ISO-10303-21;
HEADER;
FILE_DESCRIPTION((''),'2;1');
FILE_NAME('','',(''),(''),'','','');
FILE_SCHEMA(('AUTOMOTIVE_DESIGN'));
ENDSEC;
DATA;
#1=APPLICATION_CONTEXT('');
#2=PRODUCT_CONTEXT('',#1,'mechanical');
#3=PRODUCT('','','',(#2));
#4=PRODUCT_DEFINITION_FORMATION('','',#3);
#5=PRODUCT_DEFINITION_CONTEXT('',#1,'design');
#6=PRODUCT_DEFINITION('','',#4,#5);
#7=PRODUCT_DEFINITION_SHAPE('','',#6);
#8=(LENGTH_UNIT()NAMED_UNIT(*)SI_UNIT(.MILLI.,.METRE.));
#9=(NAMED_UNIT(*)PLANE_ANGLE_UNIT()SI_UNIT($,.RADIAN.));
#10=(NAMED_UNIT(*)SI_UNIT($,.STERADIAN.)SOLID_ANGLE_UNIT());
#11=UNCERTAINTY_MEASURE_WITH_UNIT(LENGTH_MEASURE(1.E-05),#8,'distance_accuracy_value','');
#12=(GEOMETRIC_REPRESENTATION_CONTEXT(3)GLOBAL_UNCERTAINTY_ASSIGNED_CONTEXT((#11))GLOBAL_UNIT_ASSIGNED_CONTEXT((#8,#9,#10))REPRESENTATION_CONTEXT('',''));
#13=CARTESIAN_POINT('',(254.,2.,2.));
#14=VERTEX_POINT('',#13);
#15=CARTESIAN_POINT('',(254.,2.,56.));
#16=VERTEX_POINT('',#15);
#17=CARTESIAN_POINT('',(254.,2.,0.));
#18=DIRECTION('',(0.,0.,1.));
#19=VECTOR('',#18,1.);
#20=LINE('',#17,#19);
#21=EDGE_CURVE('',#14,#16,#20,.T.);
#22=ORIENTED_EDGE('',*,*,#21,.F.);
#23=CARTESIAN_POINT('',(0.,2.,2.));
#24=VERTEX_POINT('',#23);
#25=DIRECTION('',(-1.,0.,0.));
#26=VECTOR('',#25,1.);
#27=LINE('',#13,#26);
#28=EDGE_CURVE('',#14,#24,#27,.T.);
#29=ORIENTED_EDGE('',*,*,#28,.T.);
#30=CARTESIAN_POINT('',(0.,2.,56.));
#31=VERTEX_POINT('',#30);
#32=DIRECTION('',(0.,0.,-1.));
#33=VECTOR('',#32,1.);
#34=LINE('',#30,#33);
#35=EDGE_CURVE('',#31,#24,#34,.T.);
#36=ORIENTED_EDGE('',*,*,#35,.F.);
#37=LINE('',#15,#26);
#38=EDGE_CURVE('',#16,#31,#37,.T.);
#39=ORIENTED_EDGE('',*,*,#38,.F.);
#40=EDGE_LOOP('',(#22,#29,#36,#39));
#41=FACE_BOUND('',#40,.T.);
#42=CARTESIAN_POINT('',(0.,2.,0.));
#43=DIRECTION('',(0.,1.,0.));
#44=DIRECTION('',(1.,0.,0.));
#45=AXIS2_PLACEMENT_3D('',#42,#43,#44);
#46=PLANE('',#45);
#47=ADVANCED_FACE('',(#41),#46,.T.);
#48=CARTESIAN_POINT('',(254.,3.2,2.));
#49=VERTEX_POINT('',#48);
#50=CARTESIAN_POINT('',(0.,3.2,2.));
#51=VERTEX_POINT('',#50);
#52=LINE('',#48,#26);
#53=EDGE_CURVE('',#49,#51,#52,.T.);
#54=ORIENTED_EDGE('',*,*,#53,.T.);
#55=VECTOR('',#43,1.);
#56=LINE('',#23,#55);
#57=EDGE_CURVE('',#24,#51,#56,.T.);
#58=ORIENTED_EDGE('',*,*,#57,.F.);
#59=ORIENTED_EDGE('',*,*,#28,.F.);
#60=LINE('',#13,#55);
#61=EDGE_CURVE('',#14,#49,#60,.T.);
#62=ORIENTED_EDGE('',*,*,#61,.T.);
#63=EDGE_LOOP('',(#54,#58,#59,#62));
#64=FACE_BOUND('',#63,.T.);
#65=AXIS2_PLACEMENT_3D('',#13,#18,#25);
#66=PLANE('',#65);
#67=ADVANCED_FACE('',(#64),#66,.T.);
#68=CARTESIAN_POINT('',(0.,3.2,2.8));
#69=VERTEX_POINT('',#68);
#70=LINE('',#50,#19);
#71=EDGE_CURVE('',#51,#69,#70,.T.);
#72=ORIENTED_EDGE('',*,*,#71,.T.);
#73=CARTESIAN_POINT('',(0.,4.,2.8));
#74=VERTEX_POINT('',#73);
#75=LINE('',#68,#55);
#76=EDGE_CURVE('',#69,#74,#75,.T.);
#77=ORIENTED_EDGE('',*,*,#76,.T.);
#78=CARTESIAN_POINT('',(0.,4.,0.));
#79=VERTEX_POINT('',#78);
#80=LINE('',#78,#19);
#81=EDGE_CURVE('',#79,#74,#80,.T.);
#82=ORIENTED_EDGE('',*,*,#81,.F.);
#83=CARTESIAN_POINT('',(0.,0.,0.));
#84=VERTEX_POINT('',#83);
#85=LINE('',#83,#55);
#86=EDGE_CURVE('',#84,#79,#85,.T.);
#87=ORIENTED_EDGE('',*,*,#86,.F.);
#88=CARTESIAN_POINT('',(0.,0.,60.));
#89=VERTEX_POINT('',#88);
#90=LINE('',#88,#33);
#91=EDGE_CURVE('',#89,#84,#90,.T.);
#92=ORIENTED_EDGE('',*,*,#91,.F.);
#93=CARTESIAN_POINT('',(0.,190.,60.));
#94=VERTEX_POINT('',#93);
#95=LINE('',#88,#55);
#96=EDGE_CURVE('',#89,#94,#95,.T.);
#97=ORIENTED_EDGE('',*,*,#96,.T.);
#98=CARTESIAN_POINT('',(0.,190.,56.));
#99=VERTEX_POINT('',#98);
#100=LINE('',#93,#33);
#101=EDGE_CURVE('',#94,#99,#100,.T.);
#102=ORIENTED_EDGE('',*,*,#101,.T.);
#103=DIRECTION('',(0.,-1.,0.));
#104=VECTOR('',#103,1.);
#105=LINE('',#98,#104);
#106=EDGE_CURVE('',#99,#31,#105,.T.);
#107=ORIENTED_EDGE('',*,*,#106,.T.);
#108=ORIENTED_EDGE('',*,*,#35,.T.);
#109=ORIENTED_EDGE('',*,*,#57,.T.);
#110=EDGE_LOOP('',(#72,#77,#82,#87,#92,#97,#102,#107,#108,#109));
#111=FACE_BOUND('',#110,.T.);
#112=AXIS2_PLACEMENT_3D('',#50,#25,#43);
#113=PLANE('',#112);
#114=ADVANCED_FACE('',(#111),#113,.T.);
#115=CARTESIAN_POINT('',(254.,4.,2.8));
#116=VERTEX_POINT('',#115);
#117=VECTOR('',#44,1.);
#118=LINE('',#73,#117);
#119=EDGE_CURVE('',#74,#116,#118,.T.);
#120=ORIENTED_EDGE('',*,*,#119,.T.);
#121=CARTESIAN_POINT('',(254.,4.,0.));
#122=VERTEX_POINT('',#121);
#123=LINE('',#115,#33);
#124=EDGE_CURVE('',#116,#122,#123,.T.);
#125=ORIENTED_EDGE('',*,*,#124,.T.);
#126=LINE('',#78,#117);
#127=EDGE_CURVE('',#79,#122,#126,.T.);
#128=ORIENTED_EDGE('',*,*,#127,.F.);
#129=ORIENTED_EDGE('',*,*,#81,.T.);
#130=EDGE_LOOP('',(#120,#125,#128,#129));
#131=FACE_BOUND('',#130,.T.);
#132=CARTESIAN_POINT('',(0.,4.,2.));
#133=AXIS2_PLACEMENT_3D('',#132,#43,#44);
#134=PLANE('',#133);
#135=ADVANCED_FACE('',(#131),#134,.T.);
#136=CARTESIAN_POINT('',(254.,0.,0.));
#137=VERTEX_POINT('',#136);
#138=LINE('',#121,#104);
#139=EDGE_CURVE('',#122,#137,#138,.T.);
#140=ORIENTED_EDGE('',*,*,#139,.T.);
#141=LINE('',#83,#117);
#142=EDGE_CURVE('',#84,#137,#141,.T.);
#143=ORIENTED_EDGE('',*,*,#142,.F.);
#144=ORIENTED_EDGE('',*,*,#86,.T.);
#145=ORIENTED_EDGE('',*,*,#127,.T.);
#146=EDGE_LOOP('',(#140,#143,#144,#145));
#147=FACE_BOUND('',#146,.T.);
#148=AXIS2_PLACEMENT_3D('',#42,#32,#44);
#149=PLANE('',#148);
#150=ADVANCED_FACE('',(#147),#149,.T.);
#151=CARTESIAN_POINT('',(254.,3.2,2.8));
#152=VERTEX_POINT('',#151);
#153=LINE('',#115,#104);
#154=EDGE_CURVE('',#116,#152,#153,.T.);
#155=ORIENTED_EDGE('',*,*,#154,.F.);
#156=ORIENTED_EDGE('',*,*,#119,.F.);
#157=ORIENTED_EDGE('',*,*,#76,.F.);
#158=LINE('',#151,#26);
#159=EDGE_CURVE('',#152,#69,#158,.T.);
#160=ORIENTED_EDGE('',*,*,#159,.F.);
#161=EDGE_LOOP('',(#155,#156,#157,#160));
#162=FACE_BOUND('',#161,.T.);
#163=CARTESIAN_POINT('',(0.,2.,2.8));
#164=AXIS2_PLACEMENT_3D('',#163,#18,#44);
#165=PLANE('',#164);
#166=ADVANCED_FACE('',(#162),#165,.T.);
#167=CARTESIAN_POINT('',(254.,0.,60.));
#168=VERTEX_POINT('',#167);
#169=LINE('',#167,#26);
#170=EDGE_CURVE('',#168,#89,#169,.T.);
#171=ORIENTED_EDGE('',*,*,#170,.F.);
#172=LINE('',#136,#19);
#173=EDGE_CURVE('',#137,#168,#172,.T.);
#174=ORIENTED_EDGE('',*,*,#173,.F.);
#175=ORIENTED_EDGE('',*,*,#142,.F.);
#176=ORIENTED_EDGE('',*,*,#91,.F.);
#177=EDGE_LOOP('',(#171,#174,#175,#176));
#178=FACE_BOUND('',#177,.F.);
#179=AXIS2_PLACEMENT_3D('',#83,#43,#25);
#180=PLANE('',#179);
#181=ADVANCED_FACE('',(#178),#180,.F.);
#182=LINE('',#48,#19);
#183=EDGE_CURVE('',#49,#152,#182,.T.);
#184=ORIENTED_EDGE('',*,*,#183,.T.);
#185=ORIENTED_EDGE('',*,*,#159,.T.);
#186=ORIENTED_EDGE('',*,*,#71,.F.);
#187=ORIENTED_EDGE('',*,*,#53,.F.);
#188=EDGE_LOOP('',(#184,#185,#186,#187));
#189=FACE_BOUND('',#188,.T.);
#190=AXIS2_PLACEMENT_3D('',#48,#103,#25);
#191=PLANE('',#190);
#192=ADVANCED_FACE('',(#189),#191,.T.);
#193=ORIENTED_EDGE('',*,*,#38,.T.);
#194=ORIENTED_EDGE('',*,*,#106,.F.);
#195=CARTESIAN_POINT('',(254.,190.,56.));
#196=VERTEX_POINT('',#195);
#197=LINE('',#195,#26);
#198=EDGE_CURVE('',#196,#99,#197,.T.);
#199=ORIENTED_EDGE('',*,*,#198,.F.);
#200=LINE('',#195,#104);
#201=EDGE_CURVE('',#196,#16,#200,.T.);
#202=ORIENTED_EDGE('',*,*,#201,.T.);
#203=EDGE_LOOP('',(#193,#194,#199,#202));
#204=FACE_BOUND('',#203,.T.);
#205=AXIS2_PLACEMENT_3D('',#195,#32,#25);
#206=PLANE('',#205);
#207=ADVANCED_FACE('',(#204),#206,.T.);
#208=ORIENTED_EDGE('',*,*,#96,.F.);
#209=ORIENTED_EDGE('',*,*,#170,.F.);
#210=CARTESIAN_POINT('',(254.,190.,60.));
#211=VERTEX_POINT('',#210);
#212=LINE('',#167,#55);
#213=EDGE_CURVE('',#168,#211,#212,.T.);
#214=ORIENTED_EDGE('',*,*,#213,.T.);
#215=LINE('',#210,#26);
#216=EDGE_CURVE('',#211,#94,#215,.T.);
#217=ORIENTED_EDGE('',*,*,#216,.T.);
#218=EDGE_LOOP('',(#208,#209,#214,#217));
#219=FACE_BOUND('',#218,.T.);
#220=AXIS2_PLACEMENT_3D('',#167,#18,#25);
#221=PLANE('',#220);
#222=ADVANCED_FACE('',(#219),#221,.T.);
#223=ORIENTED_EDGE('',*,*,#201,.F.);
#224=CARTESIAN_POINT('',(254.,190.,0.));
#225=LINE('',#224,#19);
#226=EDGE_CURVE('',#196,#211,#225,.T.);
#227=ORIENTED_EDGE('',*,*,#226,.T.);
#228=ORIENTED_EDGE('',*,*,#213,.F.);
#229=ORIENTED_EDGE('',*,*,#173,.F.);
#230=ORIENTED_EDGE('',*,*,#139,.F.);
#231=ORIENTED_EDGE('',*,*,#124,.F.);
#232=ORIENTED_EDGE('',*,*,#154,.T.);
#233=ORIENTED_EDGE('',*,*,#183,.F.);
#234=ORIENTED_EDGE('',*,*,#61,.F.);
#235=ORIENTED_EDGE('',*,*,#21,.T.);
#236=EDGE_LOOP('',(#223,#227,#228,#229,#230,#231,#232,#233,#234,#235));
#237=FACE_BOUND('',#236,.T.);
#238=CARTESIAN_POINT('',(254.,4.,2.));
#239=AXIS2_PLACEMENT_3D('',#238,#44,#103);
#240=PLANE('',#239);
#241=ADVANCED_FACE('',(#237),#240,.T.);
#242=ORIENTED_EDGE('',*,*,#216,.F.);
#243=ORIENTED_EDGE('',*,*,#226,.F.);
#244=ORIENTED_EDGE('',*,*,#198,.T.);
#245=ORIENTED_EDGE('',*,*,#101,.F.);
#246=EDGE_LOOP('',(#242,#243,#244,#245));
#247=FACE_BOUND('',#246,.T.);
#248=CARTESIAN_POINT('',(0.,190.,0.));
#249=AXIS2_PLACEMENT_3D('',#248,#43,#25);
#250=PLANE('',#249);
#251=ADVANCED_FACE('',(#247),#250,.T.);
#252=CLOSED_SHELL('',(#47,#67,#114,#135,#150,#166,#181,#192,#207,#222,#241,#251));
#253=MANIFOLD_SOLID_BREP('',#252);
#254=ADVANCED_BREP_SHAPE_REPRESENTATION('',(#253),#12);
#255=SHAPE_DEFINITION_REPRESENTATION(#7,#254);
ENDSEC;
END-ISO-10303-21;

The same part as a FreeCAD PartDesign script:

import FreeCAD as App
import Part
import Sketcher


def add_polygon(sketch, points):
    """Adds a closed chain of lines whose ends are joined by coincident constraints."""
    first, n = sketch.GeometryCount, len(points)
    for a, b in zip(points, points[1:] + points[:1]):
        sketch.addGeometry(Part.LineSegment(App.Vector(*a, 0), App.Vector(*b, 0)), False)
    for i in range(n):
        sketch.addConstraint(Sketcher.Constraint("Coincident", first + i, 2, first + (i + 1) % n, 1))

doc = App.newDocument("Part")
body = doc.addObject("PartDesign::Body", "Body")

# Sketch on XZ plane
sketch1 = body.newObject("Sketcher::SketchObject", "Sketch")
sketch1.AttachmentSupport = (doc.getObject("XZ_Plane"), [""])
sketch1.MapMode = "FlatFace"
add_polygon(sketch1, [(254, 0), (0, 0), (0, 60), (254, 60)])  # lines 0-3
sketch1.addConstraint(Sketcher.Constraint("Horizontal", 0))
sketch1.addConstraint(Sketcher.Constraint("Vertical", 1))
sketch1.addConstraint(Sketcher.Constraint("Horizontal", 2))
sketch1.addConstraint(Sketcher.Constraint("Vertical", 3))
sketch1.addConstraint(Sketcher.Constraint("Coincident", 0, 2, -1, 1))
sketch1.addConstraint(Sketcher.Constraint("DistanceX", 0, 2, 0, 1, 254.0))
sketch1.addConstraint(Sketcher.Constraint("DistanceY", 1, 1, 1, 2, 60.0))
pad1 = body.newObject("PartDesign::Pad", "Pad")
pad1.Profile = sketch1
pad1.Length = 190
pad1.Reversed = True

# Sketch on XZ plane
sketch2 = body.newObject("Sketcher::SketchObject", "Sketch001")
sketch2.AttachmentSupport = (doc.getObject("XZ_Plane"), [""])
sketch2.MapMode = "FlatFace"
sketch2.AttachmentOffset = App.Placement(App.Vector(0, 0, -190), App.Rotation())
add_polygon(sketch2, [(254, 56), (254, 0), (0, 0), (0, 56)])  # lines 0-3
sketch2.addConstraint(Sketcher.Constraint("Vertical", 0))
sketch2.addConstraint(Sketcher.Constraint("Horizontal", 1))
sketch2.addConstraint(Sketcher.Constraint("Vertical", 2))
sketch2.addConstraint(Sketcher.Constraint("Horizontal", 3))
sketch2.addConstraint(Sketcher.Constraint("Coincident", 1, 2, -1, 1))
sketch2.addConstraint(Sketcher.Constraint("DistanceX", 1, 2, 1, 1, 254.0))
sketch2.addConstraint(Sketcher.Constraint("DistanceY", 0, 2, 0, 1, 56.0))
pocket1 = body.newObject("PartDesign::Pocket", "Pocket")
pocket1.Profile = sketch2
pocket1.Length = 188
pocket1.Reversed = True

# Sketch on XZ plane
sketch3 = body.newObject("Sketcher::SketchObject", "Sketch002")
sketch3.AttachmentSupport = (doc.getObject("XZ_Plane"), [""])
sketch3.MapMode = "FlatFace"
sketch3.AttachmentOffset = App.Placement(App.Vector(0, 0, -2), App.Rotation())
add_polygon(sketch3, [(254, 0), (0, 0), (0, 2), (254, 2)])  # lines 0-3
sketch3.addConstraint(Sketcher.Constraint("Horizontal", 0))
sketch3.addConstraint(Sketcher.Constraint("Vertical", 1))
sketch3.addConstraint(Sketcher.Constraint("Horizontal", 2))
sketch3.addConstraint(Sketcher.Constraint("Vertical", 3))
sketch3.addConstraint(Sketcher.Constraint("Coincident", 0, 2, -1, 1))
sketch3.addConstraint(Sketcher.Constraint("DistanceX", 0, 2, 0, 1, 254.0))
sketch3.addConstraint(Sketcher.Constraint("DistanceY", 1, 1, 1, 2, 2.0))
pad2 = body.newObject("PartDesign::Pad", "Pad001")
pad2.Profile = sketch3
pad2.Length = 2
pad2.Reversed = True

# Sketch on XY plane
sketch4 = body.newObject("Sketcher::SketchObject", "Sketch003")
sketch4.AttachmentSupport = (doc.getObject("XY_Plane"), [""])
sketch4.MapMode = "FlatFace"
sketch4.AttachmentOffset = App.Placement(App.Vector(0, 0, 2), App.Rotation())
add_polygon(sketch4, [(254, 4), (0, 4), (0, 3.2), (254, 3.2)])  # lines 0-3
sketch4.addConstraint(Sketcher.Constraint("Horizontal", 0))
sketch4.addConstraint(Sketcher.Constraint("Vertical", 1))
sketch4.addConstraint(Sketcher.Constraint("Horizontal", 2))
sketch4.addConstraint(Sketcher.Constraint("Vertical", 3))
sketch4.addConstraint(Sketcher.Constraint("PointOnObject", 0, 2, -2))
sketch4.addConstraint(Sketcher.Constraint("DistanceX", 0, 2, 0, 1, 254.0))
sketch4.addConstraint(Sketcher.Constraint("DistanceY", 1, 2, 1, 1, 0.8))
sketch4.addConstraint(Sketcher.Constraint("DistanceY", -1, 1, 0, 2, 4.0))
pad3 = body.newObject("PartDesign::Pad", "Pad002")
pad3.Profile = sketch4
pad3.Length = 0.8

doc.recompute()
